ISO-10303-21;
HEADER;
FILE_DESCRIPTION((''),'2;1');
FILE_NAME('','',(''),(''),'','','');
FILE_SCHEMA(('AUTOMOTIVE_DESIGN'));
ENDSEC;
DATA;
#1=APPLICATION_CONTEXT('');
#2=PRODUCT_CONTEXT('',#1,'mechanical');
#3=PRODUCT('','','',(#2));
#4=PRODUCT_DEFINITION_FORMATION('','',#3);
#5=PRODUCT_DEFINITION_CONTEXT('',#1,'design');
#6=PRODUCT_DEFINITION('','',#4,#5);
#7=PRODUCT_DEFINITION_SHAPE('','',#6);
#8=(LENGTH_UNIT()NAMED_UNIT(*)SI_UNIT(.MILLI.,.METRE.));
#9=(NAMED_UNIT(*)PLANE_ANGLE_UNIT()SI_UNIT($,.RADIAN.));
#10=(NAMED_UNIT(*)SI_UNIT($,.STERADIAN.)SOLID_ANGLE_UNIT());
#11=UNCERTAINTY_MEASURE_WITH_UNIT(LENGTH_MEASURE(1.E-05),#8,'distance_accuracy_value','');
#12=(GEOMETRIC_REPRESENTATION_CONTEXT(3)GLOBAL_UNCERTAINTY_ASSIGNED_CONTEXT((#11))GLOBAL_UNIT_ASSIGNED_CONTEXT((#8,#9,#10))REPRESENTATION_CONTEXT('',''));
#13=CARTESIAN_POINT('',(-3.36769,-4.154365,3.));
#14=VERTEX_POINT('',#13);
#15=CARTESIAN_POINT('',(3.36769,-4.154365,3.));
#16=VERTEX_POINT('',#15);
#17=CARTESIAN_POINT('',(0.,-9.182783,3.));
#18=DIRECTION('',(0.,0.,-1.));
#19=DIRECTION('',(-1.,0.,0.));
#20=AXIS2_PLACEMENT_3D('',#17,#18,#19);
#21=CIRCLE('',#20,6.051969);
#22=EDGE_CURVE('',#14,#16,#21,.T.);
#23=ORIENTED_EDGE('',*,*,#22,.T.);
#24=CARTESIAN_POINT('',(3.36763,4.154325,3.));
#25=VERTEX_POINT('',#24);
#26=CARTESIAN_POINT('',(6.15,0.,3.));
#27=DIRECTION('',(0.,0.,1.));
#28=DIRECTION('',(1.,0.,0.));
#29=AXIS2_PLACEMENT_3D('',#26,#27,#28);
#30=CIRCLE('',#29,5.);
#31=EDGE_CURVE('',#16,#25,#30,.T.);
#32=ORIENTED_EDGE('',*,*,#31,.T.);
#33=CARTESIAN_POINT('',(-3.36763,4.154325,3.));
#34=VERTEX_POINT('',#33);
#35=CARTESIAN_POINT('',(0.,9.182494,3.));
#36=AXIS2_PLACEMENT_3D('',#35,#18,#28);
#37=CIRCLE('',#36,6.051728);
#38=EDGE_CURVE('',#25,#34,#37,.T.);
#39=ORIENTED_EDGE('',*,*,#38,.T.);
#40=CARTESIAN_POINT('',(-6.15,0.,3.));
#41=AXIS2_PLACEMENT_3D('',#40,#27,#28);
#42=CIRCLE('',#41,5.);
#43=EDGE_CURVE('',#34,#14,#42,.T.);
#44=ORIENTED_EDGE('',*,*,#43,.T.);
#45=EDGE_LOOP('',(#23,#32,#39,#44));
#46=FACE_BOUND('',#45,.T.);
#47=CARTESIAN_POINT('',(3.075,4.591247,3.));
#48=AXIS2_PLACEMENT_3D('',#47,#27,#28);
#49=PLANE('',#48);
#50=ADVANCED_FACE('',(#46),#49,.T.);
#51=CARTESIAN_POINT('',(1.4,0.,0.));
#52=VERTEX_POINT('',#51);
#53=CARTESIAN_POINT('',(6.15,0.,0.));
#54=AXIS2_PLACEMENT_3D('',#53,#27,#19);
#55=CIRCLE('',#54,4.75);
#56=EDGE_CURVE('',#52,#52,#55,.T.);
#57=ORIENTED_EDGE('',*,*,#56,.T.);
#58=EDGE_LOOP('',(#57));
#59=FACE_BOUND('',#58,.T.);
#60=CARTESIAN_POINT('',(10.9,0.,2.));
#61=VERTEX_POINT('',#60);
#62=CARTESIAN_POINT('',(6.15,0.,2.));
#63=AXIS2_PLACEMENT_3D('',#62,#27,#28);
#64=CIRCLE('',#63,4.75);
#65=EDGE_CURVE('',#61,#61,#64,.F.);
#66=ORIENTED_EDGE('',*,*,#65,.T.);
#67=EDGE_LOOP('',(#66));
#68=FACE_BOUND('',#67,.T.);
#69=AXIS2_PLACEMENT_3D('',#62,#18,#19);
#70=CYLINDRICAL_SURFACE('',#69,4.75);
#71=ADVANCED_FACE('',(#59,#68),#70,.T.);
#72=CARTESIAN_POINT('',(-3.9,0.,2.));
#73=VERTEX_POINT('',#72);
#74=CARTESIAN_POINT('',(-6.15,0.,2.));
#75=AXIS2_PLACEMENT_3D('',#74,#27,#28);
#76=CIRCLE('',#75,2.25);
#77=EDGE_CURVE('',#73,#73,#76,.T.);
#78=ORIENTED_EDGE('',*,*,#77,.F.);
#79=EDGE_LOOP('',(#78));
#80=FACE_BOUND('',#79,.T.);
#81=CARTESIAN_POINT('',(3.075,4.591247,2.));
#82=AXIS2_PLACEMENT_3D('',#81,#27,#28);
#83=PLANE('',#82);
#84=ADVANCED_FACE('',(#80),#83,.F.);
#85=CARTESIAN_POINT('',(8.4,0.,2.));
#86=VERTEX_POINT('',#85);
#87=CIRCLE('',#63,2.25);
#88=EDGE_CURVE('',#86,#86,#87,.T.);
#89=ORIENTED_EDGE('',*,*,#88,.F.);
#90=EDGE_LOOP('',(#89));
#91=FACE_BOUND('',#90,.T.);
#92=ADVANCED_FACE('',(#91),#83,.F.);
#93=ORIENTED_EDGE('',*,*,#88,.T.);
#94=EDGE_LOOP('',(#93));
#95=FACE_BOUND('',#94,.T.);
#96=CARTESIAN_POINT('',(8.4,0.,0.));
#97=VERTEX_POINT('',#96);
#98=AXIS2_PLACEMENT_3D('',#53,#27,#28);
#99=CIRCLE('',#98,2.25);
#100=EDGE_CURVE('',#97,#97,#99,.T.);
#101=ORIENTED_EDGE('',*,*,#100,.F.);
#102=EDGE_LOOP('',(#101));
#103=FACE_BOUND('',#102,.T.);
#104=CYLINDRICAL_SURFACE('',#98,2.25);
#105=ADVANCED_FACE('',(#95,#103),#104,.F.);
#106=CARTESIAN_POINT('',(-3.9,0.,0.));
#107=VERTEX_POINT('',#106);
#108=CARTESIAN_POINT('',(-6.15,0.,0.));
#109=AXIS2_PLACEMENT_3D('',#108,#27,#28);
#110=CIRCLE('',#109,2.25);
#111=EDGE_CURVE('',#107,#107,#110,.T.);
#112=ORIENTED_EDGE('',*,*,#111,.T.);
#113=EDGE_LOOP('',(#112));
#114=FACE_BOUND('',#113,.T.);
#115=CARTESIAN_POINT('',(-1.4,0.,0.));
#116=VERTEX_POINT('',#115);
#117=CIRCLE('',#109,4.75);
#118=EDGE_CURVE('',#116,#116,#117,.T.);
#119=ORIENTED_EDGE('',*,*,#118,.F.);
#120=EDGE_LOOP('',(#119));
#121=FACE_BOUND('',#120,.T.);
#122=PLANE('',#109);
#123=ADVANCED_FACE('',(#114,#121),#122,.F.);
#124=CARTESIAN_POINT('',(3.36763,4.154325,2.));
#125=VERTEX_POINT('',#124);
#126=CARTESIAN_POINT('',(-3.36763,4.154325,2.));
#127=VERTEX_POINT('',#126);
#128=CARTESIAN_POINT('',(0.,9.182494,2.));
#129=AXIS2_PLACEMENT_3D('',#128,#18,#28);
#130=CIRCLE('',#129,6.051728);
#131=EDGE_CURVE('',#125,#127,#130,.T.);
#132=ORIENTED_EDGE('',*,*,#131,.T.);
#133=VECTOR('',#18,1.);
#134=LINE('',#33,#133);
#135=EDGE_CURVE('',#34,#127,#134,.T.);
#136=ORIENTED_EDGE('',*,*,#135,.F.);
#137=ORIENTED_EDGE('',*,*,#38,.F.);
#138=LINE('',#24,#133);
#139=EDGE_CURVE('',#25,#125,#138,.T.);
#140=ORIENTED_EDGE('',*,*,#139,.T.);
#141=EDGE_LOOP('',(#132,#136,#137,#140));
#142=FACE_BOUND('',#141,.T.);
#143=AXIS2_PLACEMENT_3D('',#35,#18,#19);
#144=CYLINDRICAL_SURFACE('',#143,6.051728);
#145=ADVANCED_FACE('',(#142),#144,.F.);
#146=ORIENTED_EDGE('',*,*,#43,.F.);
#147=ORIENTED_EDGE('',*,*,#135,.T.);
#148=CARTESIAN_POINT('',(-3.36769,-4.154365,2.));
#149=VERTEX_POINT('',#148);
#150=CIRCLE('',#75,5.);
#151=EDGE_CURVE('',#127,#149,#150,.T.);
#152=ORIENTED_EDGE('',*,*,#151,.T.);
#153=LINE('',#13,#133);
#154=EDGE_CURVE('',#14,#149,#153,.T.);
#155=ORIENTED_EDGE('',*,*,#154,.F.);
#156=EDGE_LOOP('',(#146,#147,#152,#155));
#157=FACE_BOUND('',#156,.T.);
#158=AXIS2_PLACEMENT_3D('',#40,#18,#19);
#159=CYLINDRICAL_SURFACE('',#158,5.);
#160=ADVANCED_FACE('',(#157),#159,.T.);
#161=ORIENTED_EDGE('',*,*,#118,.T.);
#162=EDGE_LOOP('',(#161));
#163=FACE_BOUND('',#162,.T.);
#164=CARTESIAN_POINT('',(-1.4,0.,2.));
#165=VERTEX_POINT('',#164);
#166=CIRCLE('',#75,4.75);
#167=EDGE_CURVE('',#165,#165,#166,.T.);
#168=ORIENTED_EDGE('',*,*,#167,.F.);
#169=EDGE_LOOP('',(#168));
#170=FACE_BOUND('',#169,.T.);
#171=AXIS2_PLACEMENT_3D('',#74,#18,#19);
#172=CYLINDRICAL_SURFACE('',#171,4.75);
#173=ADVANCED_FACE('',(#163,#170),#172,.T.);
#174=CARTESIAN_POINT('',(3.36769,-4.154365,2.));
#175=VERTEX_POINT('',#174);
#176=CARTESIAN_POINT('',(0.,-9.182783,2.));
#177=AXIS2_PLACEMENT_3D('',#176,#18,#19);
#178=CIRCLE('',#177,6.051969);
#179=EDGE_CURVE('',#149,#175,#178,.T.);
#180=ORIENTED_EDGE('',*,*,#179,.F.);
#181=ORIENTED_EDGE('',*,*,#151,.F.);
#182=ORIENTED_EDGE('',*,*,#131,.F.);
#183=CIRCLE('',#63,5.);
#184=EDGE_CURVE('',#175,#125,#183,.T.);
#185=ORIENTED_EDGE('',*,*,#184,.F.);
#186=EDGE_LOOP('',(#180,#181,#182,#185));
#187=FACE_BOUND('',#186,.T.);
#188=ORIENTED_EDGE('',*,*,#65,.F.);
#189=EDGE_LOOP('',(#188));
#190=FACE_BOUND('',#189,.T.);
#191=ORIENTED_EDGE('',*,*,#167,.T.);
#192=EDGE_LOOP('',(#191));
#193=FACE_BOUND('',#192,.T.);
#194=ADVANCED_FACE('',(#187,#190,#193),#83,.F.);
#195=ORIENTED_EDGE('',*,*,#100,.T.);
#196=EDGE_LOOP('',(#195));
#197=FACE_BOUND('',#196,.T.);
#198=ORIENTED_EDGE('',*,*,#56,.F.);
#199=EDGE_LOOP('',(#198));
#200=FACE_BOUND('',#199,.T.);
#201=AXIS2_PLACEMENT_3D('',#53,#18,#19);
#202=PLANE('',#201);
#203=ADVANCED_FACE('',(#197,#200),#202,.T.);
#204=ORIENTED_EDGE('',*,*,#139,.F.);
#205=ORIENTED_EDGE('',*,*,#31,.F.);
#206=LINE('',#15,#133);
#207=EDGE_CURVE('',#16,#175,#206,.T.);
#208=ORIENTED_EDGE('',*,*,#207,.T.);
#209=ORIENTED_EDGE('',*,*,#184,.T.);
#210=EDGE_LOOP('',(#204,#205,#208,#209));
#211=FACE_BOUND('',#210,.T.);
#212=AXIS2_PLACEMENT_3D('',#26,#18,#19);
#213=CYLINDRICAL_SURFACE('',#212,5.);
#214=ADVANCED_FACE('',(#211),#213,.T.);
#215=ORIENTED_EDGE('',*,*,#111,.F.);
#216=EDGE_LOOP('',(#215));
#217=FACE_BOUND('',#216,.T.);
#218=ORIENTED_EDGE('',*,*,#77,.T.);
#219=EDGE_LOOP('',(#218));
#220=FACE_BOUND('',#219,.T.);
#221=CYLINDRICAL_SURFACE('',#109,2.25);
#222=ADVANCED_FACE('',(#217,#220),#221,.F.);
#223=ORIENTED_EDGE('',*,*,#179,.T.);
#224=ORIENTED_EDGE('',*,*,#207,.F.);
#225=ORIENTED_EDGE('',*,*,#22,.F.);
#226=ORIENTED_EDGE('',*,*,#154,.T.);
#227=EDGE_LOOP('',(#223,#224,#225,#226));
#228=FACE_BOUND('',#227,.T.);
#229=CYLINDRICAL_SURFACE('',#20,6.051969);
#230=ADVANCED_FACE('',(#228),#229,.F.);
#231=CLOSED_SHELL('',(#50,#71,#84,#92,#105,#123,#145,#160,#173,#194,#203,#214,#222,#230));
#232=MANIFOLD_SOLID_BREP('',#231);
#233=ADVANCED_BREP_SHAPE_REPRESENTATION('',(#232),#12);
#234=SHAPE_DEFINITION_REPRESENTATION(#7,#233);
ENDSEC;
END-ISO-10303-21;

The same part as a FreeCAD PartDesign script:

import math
import FreeCAD as App
import Part
import Sketcher

doc = App.newDocument("Part")
body = doc.addObject("PartDesign::Body", "Body")

sketch1 = body.newObject("Sketcher::SketchObject", "Sketch")
sketch1.AttachmentSupport = (doc.getObject("XY_Plane"), [""])
sketch1.MapMode = "FlatFace"
sketch1.addGeometry(Part.Circle(App.Vector(-6.2, 0, 0), App.Vector(0, 0, 1), 4.8), False)
sketch1.addConstraint(Sketcher.Constraint("PointOnObject", 0, 3, -1))
sketch1.addConstraint(Sketcher.Constraint("Diameter", 0, 9.5))
sketch1.addConstraint(Sketcher.Constraint("DistanceX", 0, 3, -1, 1, 6.15))
pad1 = body.newObject("PartDesign::Pad", "Pad")
pad1.Profile = sketch1
pad1.Length = 2

sketch2 = body.newObject("Sketcher::SketchObject", "Sketch001")
sketch2.AttachmentSupport = (doc.getObject("XY_Plane"), [""])
sketch2.MapMode = "FlatFace"
sketch2.AttachmentOffset = App.Placement(App.Vector(0, 0, 2), App.Rotation())
sketch2.addGeometry(Part.Circle(App.Vector(-6.2, 0, 0), App.Vector(0, 0, 1), 2.2), False)
sketch2.addConstraint(Sketcher.Constraint("PointOnObject", 0, 3, -1))
sketch2.addConstraint(Sketcher.Constraint("Diameter", 0, 4.5))
sketch2.addConstraint(Sketcher.Constraint("DistanceX", 0, 3, -1, 1, 6.15))
pocket1 = body.newObject("PartDesign::Pocket", "Pocket")
pocket1.Profile = sketch2
pocket1.Length = 2
body2 = doc.addObject("PartDesign::Body", "Body001")

sketch3 = body2.newObject("Sketcher::SketchObject", "Sketch002")
sketch3.AttachmentSupport = (doc.getObject("XY_Plane001"), [""])
sketch3.MapMode = "FlatFace"
sketch3.addGeometry(Part.Circle(App.Vector(6.2, 0, 0), App.Vector(0, 0, 1), 4.8), False)
sketch3.addConstraint(Sketcher.Constraint("PointOnObject", 0, 3, -1))
sketch3.addConstraint(Sketcher.Constraint("Diameter", 0, 9.5))
sketch3.addConstraint(Sketcher.Constraint("DistanceX", -1, 1, 0, 3, 6.15))
pad2 = body2.newObject("PartDesign::Pad", "Pad001")
pad2.Profile = sketch3
pad2.Length = 2

sketch4 = body2.newObject("Sketcher::SketchObject", "Sketch003")
sketch4.AttachmentSupport = (doc.getObject("XY_Plane001"), [""])
sketch4.MapMode = "FlatFace"
sketch4.AttachmentOffset = App.Placement(App.Vector(0, 0, 2), App.Rotation())
sketch4.addGeometry(Part.Circle(App.Vector(6.2, 0, 0), App.Vector(0, 0, 1), 2.2), False)
sketch4.addConstraint(Sketcher.Constraint("PointOnObject", 0, 3, -1))
sketch4.addConstraint(Sketcher.Constraint("Diameter", 0, 4.5))
sketch4.addConstraint(Sketcher.Constraint("DistanceX", -1, 1, 0, 3, 6.15))
pocket2 = body2.newObject("PartDesign::Pocket", "Pocket001")
pocket2.Profile = sketch4
pocket2.Length = 2
body.AllowCompound = True
doc.recompute()

boolean = body.newObject("PartDesign::Boolean", "Boolean")
boolean.Type = "Fuse"
boolean.addObjects([body2])

sketch5 = body.newObject("Sketcher::SketchObject", "Sketch004")
sketch5.AttachmentSupport = (doc.getObject("XY_Plane"), [""])
sketch5.MapMode = "FlatFace"
sketch5.AttachmentOffset = App.Placement(App.Vector(0, 0, 2), App.Rotation())
sketch5.addGeometry(Part.ArcOfCircle(Part.Circle(App.Vector(-6, 0, 0), App.Vector(0, 0, 1), 5), math.radians(56), math.radians(304)), False)
sketch5.addGeometry(Part.ArcOfCircle(Part.Circle(App.Vector(0, -9, 0), App.Vector(0, 0, 1), 6), math.radians(56), math.radians(124)), False)
sketch5.addGeometry(Part.ArcOfCircle(Part.Circle(App.Vector(6, 0, 0), App.Vector(0, 0, 1), 5), math.radians(-124), math.radians(124)), False)
sketch5.addGeometry(Part.ArcOfCircle(Part.Circle(App.Vector(0, 9, 0), App.Vector(0, 0, 1), 6), math.radians(-124), math.radians(-56)), False)
sketch5.addConstraint(Sketcher.Constraint("Tangent", 0, 2, 1, 2))
sketch5.addConstraint(Sketcher.Constraint("Tangent", 1, 1, 2, 1))
sketch5.addConstraint(Sketcher.Constraint("Tangent", 2, 2, 3, 2))
sketch5.addConstraint(Sketcher.Constraint("Tangent", 3, 1, 0, 1))
sketch5.addConstraint(Sketcher.Constraint("Equal", 0, 2))
sketch5.addConstraint(Sketcher.Constraint("Symmetric", 0, 3, 2, 3, -1, 1))
sketch5.addConstraint(Sketcher.Constraint("PointOnObject", 0, 3, -1))
sketch5.addConstraint(Sketcher.Constraint("Radius", 0, 5.0))
sketch5.addConstraint(Sketcher.Constraint("DistanceX", 0, 3, 2, 3, 12.3))
sketch5.addConstraint(Sketcher.Constraint("Radius", 1, 6.051969))
sketch5.addConstraint(Sketcher.Constraint("Radius", 3, 6.051728))
pad3 = body.newObject("PartDesign::Pad", "Pad002")
pad3.Profile = sketch5
pad3.Length = 1

doc.recompute()
